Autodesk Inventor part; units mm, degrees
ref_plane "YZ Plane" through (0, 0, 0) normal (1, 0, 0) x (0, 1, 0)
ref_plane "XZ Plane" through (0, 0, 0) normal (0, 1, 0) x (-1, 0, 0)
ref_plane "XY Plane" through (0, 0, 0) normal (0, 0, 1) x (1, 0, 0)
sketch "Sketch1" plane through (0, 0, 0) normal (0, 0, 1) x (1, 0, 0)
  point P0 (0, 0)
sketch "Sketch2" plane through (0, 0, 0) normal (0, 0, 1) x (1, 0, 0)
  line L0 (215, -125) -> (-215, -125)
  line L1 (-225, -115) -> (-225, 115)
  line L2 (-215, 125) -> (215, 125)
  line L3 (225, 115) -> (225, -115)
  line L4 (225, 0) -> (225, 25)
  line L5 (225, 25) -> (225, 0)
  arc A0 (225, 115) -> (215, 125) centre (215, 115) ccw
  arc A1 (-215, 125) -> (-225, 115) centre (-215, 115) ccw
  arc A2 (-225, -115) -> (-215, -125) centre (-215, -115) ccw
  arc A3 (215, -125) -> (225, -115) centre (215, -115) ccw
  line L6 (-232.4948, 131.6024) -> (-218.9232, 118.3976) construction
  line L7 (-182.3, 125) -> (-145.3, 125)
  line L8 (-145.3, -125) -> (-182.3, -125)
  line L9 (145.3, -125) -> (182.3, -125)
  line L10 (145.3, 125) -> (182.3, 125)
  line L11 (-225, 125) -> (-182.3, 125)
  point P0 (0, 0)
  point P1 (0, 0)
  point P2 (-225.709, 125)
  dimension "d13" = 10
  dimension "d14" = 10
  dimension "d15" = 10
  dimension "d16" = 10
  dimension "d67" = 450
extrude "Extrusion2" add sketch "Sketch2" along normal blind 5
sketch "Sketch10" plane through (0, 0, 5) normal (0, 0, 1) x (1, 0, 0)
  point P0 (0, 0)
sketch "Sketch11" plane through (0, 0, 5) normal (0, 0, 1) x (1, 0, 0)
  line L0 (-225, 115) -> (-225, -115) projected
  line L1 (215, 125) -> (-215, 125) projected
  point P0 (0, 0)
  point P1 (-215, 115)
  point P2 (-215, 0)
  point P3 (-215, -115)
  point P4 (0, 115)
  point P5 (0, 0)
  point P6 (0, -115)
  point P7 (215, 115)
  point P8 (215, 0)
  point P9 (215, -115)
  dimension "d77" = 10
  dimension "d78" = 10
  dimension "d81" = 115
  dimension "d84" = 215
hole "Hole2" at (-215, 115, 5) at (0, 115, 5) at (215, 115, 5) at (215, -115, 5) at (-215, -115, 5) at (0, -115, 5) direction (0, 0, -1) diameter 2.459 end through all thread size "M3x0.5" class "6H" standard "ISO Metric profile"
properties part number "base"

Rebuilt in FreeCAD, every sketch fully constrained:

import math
import FreeCAD as App
import Part
import Sketcher

doc = App.newDocument("Part")
body = doc.addObject("PartDesign::Body", "Body")

# Sketch on XY plane
sketch1 = body.newObject("Sketcher::SketchObject", "Sketch")
sketch1.AttachmentSupport = (doc.getObject("XY_Plane"), [""])
sketch1.MapMode = "FlatFace"
sketch1.addGeometry(Part.LineSegment(App.Vector(-215, -125, 0), App.Vector(215, -125, 0)), False)
sketch1.addGeometry(Part.ArcOfCircle(Part.Circle(App.Vector(215, -115, 0), App.Vector(0, 0, 1), 10), math.radians(-90), math.radians(0)), False)
sketch1.addGeometry(Part.LineSegment(App.Vector(225, -115, 0), App.Vector(225, 115, 0)), False)
sketch1.addGeometry(Part.ArcOfCircle(Part.Circle(App.Vector(215, 115, 0), App.Vector(0, 0, 1), 10), math.radians(0), math.radians(90)), False)
sketch1.addGeometry(Part.LineSegment(App.Vector(215, 125, 0), App.Vector(-215, 125, 0)), False)
sketch1.addGeometry(Part.ArcOfCircle(Part.Circle(App.Vector(-215, 115, 0), App.Vector(0, 0, 1), 10), math.radians(90), math.radians(180)), False)
sketch1.addGeometry(Part.LineSegment(App.Vector(-225, 115, 0), App.Vector(-225, -115, 0)), False)
sketch1.addGeometry(Part.ArcOfCircle(Part.Circle(App.Vector(-215, -115, 0), App.Vector(0, 0, 1), 10), math.radians(180), math.radians(270)), False)
sketch1.addConstraint(Sketcher.Constraint("Tangent", 0, 2, 1, 1))
sketch1.addConstraint(Sketcher.Constraint("Tangent", 1, 2, 2, 1))
sketch1.addConstraint(Sketcher.Constraint("Tangent", 2, 2, 3, 1))
sketch1.addConstraint(Sketcher.Constraint("Tangent", 3, 2, 4, 1))
sketch1.addConstraint(Sketcher.Constraint("Tangent", 4, 2, 5, 1))
sketch1.addConstraint(Sketcher.Constraint("Tangent", 5, 2, 6, 1))
sketch1.addConstraint(Sketcher.Constraint("Tangent", 6, 2, 7, 1))
sketch1.addConstraint(Sketcher.Constraint("Tangent", 7, 2, 0, 1))
sketch1.addConstraint(Sketcher.Constraint("Horizontal", 0))
sketch1.addConstraint(Sketcher.Constraint("Vertical", 2))
sketch1.addConstraint(Sketcher.Constraint("Horizontal", 4))
sketch1.addConstraint(Sketcher.Constraint("Vertical", 6))
sketch1.addConstraint(Sketcher.Constraint("Equal", 1, 3))
sketch1.addConstraint(Sketcher.Constraint("Equal", 3, 5))
sketch1.addConstraint(Sketcher.Constraint("Equal", 5, 7))
sketch1.addConstraint(Sketcher.Constraint("Symmetric", 1, 3, 5, 3, -1, 1))
sketch1.addConstraint(Sketcher.Constraint("Radius", 1, 10.0))
sketch1.addConstraint(Sketcher.Constraint("DistanceX", 0, 1, 0, 2, 430.0))
sketch1.addConstraint(Sketcher.Constraint("DistanceY", 2, 1, 2, 2, 230.0))
pad1 = body.newObject("PartDesign::Pad", "Pad")
pad1.Profile = sketch1
pad1.Length = 5

# Sketch on XY plane
sketch2 = body.newObject("Sketcher::SketchObject", "Sketch001")
sketch2.AttachmentSupport = (doc.getObject("XY_Plane"), [""])
sketch2.MapMode = "FlatFace"
sketch2.AttachmentOffset = App.Placement(App.Vector(0, 0, 5), App.Rotation())
sketch2.addGeometry(Part.Circle(App.Vector(-215, 115, 0), App.Vector(0, 0, 1), 1.2295), False)
sketch2.addGeometry(Part.Circle(App.Vector(0, 115, 0), App.Vector(0, 0, 1), 1.2295), False)
sketch2.addGeometry(Part.Circle(App.Vector(215, 115, 0), App.Vector(0, 0, 1), 1.2295), False)
sketch2.addGeometry(Part.Circle(App.Vector(215, -115, 0), App.Vector(0, 0, 1), 1.2295), False)
sketch2.addGeometry(Part.Circle(App.Vector(-215, -115, 0), App.Vector(0, 0, 1), 1.2295), False)
sketch2.addGeometry(Part.Circle(App.Vector(0, -115, 0), App.Vector(0, 0, 1), 1.2295), False)
sketch2.addConstraint(Sketcher.Constraint("Equal", 0, 1))
sketch2.addConstraint(Sketcher.Constraint("Equal", 1, 2))
sketch2.addConstraint(Sketcher.Constraint("Equal", 2, 3))
sketch2.addConstraint(Sketcher.Constraint("Equal", 3, 4))
sketch2.addConstraint(Sketcher.Constraint("Equal", 4, 5))
sketch2.addConstraint(Sketcher.Constraint("Symmetric", 0, 3, 3, 3, -1, 1))
sketch2.addConstraint(Sketcher.Constraint("Symmetric", 2, 3, 4, 3, -1, 1))
sketch2.addConstraint(Sketcher.Constraint("Symmetric", 1, 3, 5, 3, -1, 1))
sketch2.addConstraint(Sketcher.Constraint("Symmetric", 0, 3, 2, 3, -2))
sketch2.addConstraint(Sketcher.Constraint("PointOnObject", 1, 3, -2))
sketch2.addConstraint(Sketcher.Constraint("Horizontal", 0, 3, 1, 3))
sketch2.addConstraint(Sketcher.Constraint("Diameter", 0, 2.459))
sketch2.addConstraint(Sketcher.Constraint("DistanceX", 0, 3, -1, 1, 215.0))
sketch2.addConstraint(Sketcher.Constraint("DistanceY", -1, 1, 0, 3, 115.0))
doc.recompute()
hole = body.newObject("PartDesign::Hole", "Hole")
hole.Profile = sketch2
hole.ThreadType = "None"
hole.Diameter = 2.459
hole.DepthType = "ThroughAll"

doc.recompute()
